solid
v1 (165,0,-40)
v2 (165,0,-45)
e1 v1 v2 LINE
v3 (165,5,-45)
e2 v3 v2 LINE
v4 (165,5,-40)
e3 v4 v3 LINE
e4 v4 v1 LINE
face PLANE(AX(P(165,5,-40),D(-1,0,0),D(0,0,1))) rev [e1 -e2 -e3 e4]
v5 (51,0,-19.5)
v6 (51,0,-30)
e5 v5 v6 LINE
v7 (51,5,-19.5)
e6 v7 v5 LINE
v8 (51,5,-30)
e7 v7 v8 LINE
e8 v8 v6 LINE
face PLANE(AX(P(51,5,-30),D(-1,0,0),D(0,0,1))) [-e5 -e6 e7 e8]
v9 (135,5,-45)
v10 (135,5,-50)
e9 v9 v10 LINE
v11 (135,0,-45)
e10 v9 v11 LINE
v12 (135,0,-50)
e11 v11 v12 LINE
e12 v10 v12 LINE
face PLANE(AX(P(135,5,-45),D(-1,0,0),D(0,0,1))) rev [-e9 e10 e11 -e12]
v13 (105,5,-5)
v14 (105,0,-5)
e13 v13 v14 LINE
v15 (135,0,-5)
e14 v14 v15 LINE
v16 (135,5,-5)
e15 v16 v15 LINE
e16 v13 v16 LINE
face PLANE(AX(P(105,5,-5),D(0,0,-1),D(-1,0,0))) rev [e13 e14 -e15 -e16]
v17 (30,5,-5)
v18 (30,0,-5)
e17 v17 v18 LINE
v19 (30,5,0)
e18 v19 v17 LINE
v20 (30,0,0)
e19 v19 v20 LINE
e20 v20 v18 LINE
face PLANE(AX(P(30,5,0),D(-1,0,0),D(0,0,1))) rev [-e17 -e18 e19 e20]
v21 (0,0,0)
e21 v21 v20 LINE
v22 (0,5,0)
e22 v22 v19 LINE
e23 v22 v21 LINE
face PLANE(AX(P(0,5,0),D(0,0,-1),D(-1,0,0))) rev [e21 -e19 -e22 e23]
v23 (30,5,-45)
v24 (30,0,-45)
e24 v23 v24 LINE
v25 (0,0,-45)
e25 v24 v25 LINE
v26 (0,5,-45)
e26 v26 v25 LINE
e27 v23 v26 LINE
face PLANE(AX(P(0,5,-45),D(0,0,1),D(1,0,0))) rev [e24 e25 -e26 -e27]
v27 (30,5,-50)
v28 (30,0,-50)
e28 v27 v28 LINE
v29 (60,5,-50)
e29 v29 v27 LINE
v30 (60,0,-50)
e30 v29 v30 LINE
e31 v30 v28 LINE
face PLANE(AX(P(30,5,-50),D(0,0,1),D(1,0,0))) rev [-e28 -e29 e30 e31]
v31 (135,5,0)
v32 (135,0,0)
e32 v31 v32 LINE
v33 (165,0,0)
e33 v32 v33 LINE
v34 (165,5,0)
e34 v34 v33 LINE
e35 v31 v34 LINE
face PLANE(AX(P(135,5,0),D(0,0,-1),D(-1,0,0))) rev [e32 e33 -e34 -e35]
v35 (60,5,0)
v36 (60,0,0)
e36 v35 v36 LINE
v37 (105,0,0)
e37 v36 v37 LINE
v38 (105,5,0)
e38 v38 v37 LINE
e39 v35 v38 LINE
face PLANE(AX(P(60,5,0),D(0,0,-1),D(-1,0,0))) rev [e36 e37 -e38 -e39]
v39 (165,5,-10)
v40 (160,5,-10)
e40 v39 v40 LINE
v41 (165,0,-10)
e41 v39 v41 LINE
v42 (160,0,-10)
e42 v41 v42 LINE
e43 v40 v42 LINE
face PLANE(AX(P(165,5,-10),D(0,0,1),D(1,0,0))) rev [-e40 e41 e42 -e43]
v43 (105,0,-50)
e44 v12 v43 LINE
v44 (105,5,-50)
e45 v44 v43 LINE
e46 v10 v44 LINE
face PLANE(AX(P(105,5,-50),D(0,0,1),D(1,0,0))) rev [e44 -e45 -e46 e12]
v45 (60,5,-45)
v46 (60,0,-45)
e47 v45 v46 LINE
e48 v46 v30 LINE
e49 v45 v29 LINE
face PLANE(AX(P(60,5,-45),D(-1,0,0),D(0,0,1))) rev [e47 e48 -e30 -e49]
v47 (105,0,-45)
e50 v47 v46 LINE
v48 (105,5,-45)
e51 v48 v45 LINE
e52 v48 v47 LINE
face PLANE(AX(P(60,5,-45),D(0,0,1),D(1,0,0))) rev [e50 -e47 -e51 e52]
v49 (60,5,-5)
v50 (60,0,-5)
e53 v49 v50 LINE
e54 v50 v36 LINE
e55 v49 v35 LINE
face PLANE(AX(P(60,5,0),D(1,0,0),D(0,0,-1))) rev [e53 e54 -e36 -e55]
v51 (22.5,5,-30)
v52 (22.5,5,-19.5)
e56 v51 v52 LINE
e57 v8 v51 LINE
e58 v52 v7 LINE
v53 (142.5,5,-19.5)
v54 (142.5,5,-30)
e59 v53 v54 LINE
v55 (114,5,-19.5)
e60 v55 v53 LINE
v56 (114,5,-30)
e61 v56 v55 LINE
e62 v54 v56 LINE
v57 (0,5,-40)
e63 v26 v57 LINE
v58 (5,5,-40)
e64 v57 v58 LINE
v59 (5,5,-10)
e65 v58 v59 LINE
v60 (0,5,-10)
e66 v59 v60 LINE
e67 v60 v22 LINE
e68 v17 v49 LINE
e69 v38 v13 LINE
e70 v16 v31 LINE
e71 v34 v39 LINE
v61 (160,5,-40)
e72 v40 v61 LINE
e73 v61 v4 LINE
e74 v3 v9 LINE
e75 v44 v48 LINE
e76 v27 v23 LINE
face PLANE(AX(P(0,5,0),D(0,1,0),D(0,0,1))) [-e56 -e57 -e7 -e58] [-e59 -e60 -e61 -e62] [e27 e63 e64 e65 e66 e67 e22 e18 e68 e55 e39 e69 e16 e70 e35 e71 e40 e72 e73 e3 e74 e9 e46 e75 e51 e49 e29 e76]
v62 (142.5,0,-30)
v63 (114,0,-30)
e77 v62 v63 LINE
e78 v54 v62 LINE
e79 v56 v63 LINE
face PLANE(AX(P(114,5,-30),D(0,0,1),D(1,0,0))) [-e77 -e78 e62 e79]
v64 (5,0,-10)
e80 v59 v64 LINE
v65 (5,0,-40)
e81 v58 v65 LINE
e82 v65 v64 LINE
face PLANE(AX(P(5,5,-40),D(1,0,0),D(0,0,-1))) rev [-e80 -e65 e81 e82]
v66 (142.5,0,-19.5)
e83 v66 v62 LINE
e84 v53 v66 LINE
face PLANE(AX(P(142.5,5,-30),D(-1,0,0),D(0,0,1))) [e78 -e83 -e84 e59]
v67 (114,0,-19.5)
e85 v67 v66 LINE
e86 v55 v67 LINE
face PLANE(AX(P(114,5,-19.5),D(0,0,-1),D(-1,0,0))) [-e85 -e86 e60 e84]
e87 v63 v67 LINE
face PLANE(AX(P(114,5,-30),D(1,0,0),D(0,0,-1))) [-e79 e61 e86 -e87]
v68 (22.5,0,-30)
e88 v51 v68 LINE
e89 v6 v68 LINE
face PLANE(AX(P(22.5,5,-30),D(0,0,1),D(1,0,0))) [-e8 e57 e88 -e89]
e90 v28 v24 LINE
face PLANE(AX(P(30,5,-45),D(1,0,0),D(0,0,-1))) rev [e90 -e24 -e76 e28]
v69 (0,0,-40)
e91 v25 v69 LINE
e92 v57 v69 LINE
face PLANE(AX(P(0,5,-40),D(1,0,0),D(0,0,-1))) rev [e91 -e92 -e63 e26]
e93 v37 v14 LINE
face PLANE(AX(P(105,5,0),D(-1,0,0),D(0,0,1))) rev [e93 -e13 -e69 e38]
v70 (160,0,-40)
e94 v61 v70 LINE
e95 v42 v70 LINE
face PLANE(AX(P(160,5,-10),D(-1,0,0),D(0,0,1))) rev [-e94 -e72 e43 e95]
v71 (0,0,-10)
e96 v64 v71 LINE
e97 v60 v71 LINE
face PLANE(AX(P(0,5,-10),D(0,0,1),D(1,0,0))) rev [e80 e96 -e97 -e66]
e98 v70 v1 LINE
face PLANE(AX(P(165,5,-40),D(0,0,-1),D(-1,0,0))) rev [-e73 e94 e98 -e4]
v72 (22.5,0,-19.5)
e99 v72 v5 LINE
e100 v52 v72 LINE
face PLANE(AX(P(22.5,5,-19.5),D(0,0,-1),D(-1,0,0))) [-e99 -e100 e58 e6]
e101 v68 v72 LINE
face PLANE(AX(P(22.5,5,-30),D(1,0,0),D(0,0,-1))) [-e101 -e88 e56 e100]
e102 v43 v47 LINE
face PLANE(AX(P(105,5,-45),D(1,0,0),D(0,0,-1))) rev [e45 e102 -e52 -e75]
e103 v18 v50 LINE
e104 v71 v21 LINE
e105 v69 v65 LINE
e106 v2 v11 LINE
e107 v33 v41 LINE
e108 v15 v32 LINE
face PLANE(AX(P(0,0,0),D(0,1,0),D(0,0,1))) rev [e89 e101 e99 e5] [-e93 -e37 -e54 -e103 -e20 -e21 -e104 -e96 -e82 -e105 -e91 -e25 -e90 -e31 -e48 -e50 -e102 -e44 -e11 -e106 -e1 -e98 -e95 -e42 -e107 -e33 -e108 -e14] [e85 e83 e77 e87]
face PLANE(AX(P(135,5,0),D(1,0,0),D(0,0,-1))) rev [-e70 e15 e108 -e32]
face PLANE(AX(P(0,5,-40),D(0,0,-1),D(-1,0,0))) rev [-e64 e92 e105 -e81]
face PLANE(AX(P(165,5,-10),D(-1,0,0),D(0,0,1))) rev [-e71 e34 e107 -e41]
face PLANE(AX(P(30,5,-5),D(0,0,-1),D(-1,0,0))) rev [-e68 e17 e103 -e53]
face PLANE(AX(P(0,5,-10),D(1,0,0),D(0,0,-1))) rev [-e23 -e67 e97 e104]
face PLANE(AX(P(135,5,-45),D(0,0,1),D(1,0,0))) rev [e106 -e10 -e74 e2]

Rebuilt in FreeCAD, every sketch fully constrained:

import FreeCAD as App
import Part
import Sketcher

V = App.Vector

doc = App.newDocument("Part")
body = doc.addObject("PartDesign::Body", "Body")

# Sketch on XZ plane
sketch1 = doc.addObject("Sketcher::SketchObject", "Sketch")
body.addObject(sketch1)
sketch1.AttachmentSupport = (doc.XZ_Plane, [""])
sketch1.MapMode = "FlatFace"
sketch1.addGeometry(Part.LineSegment(V(0, -45, 0), V(0, -40, 0)), False)
sketch1.addGeometry(Part.LineSegment(V(0, -40, 0), V(5, -40, 0)), False)
sketch1.addGeometry(Part.LineSegment(V(5, -40, 0), V(5, -10, 0)), False)
sketch1.addGeometry(Part.LineSegment(V(5, -10, 0), V(0, -10, 0)), False)
sketch1.addGeometry(Part.LineSegment(V(0, -10, 0), V(0, 0, 0)), False)
sketch1.addGeometry(Part.LineSegment(V(0, 0, 0), V(30, 0, 0)), False)
sketch1.addGeometry(Part.LineSegment(V(30, 0, 0), V(30, -5, 0)), False)
sketch1.addGeometry(Part.LineSegment(V(30, -5, 0), V(60, -5, 0)), False)
sketch1.addGeometry(Part.LineSegment(V(60, -5, 0), V(60, 0, 0)), False)
sketch1.addGeometry(Part.LineSegment(V(60, 0, 0), V(105, 0, 0)), False)
sketch1.addGeometry(Part.LineSegment(V(105, 0, 0), V(105, -5, 0)), False)
sketch1.addGeometry(Part.LineSegment(V(105, -5, 0), V(135, -5, 0)), False)
sketch1.addGeometry(Part.LineSegment(V(135, -5, 0), V(135, 0, 0)), False)
sketch1.addGeometry(Part.LineSegment(V(135, 0, 0), V(165, 0, 0)), False)
sketch1.addGeometry(Part.LineSegment(V(165, 0, 0), V(165, -10, 0)), False)
sketch1.addGeometry(Part.LineSegment(V(165, -10, 0), V(160, -10, 0)), False)
sketch1.addGeometry(Part.LineSegment(V(160, -10, 0), V(160, -40, 0)), False)
sketch1.addGeometry(Part.LineSegment(V(160, -40, 0), V(165, -40, 0)), False)
sketch1.addGeometry(Part.LineSegment(V(165, -40, 0), V(165, -45, 0)), False)
sketch1.addGeometry(Part.LineSegment(V(165, -45, 0), V(135, -45, 0)), False)
sketch1.addGeometry(Part.LineSegment(V(135, -45, 0), V(135, -50, 0)), False)
sketch1.addGeometry(Part.LineSegment(V(135, -50, 0), V(105, -50, 0)), False)
sketch1.addGeometry(Part.LineSegment(V(105, -50, 0), V(105, -45, 0)), False)
sketch1.addGeometry(Part.LineSegment(V(105, -45, 0), V(60, -45, 0)), False)
sketch1.addGeometry(Part.LineSegment(V(60, -45, 0), V(60, -50, 0)), False)
sketch1.addGeometry(Part.LineSegment(V(60, -50, 0), V(30, -50, 0)), False)
sketch1.addGeometry(Part.LineSegment(V(30, -50, 0), V(30, -45, 0)), False)
sketch1.addGeometry(Part.LineSegment(V(30, -45, 0), V(0, -45, 0)), False)
sketch1.addGeometry(Part.LineSegment(V(114, -20, 0), V(114, -30, 0)), False)
sketch1.addGeometry(Part.LineSegment(V(114, -30, 0), V(142, -30, 0)), False)
sketch1.addGeometry(Part.LineSegment(V(142, -30, 0), V(142, -20, 0)), False)
sketch1.addGeometry(Part.LineSegment(V(142, -20, 0), V(114, -20, 0)), False)
sketch1.addGeometry(Part.LineSegment(V(22, -20, 0), V(22, -30, 0)), False)
sketch1.addGeometry(Part.LineSegment(V(22, -30, 0), V(51, -30, 0)), False)
sketch1.addGeometry(Part.LineSegment(V(51, -30, 0), V(51, -20, 0)), False)
sketch1.addGeometry(Part.LineSegment(V(51, -20, 0), V(22, -20, 0)), False)
sketch1.addConstraint(Sketcher.Constraint("Coincident", 0, 2, 1, 1))
sketch1.addConstraint(Sketcher.Constraint("Coincident", 1, 2, 2, 1))
sketch1.addConstraint(Sketcher.Constraint("Coincident", 2, 2, 3, 1))
sketch1.addConstraint(Sketcher.Constraint("Coincident", 3, 2, 4, 1))
sketch1.addConstraint(Sketcher.Constraint("Coincident", 4, 2, 5, 1))
sketch1.addConstraint(Sketcher.Constraint("Coincident", 5, 2, 6, 1))
sketch1.addConstraint(Sketcher.Constraint("Coincident", 6, 2, 7, 1))
sketch1.addConstraint(Sketcher.Constraint("Coincident", 7, 2, 8, 1))
sketch1.addConstraint(Sketcher.Constraint("Coincident", 8, 2, 9, 1))
sketch1.addConstraint(Sketcher.Constraint("Coincident", 9, 2, 10, 1))
sketch1.addConstraint(Sketcher.Constraint("Coincident", 10, 2, 11, 1))
sketch1.addConstraint(Sketcher.Constraint("Coincident", 11, 2, 12, 1))
sketch1.addConstraint(Sketcher.Constraint("Coincident", 12, 2, 13, 1))
sketch1.addConstraint(Sketcher.Constraint("Coincident", 13, 2, 14, 1))
sketch1.addConstraint(Sketcher.Constraint("Coincident", 14, 2, 15, 1))
sketch1.addConstraint(Sketcher.Constraint("Coincident", 15, 2, 16, 1))
sketch1.addConstraint(Sketcher.Constraint("Coincident", 16, 2, 17, 1))
sketch1.addConstraint(Sketcher.Constraint("Coincident", 17, 2, 18, 1))
sketch1.addConstraint(Sketcher.Constraint("Coincident", 18, 2, 19, 1))
sketch1.addConstraint(Sketcher.Constraint("Coincident", 19, 2, 20, 1))
sketch1.addConstraint(Sketcher.Constraint("Coincident", 20, 2, 21, 1))
sketch1.addConstraint(Sketcher.Constraint("Coincident", 21, 2, 22, 1))
sketch1.addConstraint(Sketcher.Constraint("Coincident", 22, 2, 23, 1))
sketch1.addConstraint(Sketcher.Constraint("Coincident", 23, 2, 24, 1))
sketch1.addConstraint(Sketcher.Constraint("Coincident", 24, 2, 25, 1))
sketch1.addConstraint(Sketcher.Constraint("Coincident", 25, 2, 26, 1))
sketch1.addConstraint(Sketcher.Constraint("Coincident", 26, 2, 27, 1))
sketch1.addConstraint(Sketcher.Constraint("Coincident", 27, 2, 0, 1))
sketch1.addConstraint(Sketcher.Constraint("Coincident", 28, 2, 29, 1))
sketch1.addConstraint(Sketcher.Constraint("Coincident", 29, 2, 30, 1))
sketch1.addConstraint(Sketcher.Constraint("Coincident", 30, 2, 31, 1))
sketch1.addConstraint(Sketcher.Constraint("Coincident", 31, 2, 28, 1))
sketch1.addConstraint(Sketcher.Constraint("Coincident", 32, 2, 33, 1))
sketch1.addConstraint(Sketcher.Constraint("Coincident", 33, 2, 34, 1))
sketch1.addConstraint(Sketcher.Constraint("Coincident", 34, 2, 35, 1))
sketch1.addConstraint(Sketcher.Constraint("Coincident", 35, 2, 32, 1))
sketch1.addConstraint(Sketcher.Constraint("Vertical", 0))
sketch1.addConstraint(Sketcher.Constraint("Horizontal", 1))
sketch1.addConstraint(Sketcher.Constraint("Vertical", 2))
sketch1.addConstraint(Sketcher.Constraint("Horizontal", 3))
sketch1.addConstraint(Sketcher.Constraint("Vertical", 4))
sketch1.addConstraint(Sketcher.Constraint("Horizontal", 5))
sketch1.addConstraint(Sketcher.Constraint("Vertical", 6))
sketch1.addConstraint(Sketcher.Constraint("Horizontal", 7))
sketch1.addConstraint(Sketcher.Constraint("Vertical", 8))
sketch1.addConstraint(Sketcher.Constraint("Horizontal", 9))
sketch1.addConstraint(Sketcher.Constraint("Vertical", 10))
sketch1.addConstraint(Sketcher.Constraint("Horizontal", 11))
sketch1.addConstraint(Sketcher.Constraint("Vertical", 12))
sketch1.addConstraint(Sketcher.Constraint("Horizontal", 13))
sketch1.addConstraint(Sketcher.Constraint("Vertical", 14))
sketch1.addConstraint(Sketcher.Constraint("Horizontal", 15))
sketch1.addConstraint(Sketcher.Constraint("Vertical", 16))
sketch1.addConstraint(Sketcher.Constraint("Horizontal", 17))
sketch1.addConstraint(Sketcher.Constraint("Vertical", 18))
sketch1.addConstraint(Sketcher.Constraint("Horizontal", 19))
sketch1.addConstraint(Sketcher.Constraint("Vertical", 20))
sketch1.addConstraint(Sketcher.Constraint("Horizontal", 21))
sketch1.addConstraint(Sketcher.Constraint("Vertical", 22))
sketch1.addConstraint(Sketcher.Constraint("Horizontal", 23))
sketch1.addConstraint(Sketcher.Constraint("Vertical", 24))
sketch1.addConstraint(Sketcher.Constraint("Horizontal", 25))
sketch1.addConstraint(Sketcher.Constraint("Vertical", 26))
sketch1.addConstraint(Sketcher.Constraint("Horizontal", 27))
sketch1.addConstraint(Sketcher.Constraint("Vertical", 28))
sketch1.addConstraint(Sketcher.Constraint("Horizontal", 29))
sketch1.addConstraint(Sketcher.Constraint("Vertical", 30))
sketch1.addConstraint(Sketcher.Constraint("Horizontal", 31))
sketch1.addConstraint(Sketcher.Constraint("Vertical", 32))
sketch1.addConstraint(Sketcher.Constraint("Horizontal", 33))
sketch1.addConstraint(Sketcher.Constraint("Vertical", 34))
sketch1.addConstraint(Sketcher.Constraint("Horizontal", 35))
sketch1.addConstraint(Sketcher.Constraint("Coincident", 4, 2, -1, 1))
sketch1.addConstraint(Sketcher.Constraint("PointOnObject", 0, 2, -2))
sketch1.addConstraint(Sketcher.Constraint("PointOnObject", 8, 2, -1))
sketch1.addConstraint(Sketcher.Constraint("PointOnObject", 12, 2, -1))
sketch1.addConstraint(Sketcher.Constraint("Horizontal", 7, 2, 10, 2))
sketch1.addConstraint(Sketcher.Constraint("Horizontal", 3, 2, 14, 2))
sketch1.addConstraint(Sketcher.Constraint("Horizontal", 1, 2, 16, 2))
sketch1.addConstraint(Sketcher.Constraint("Horizontal", 19, 2, 22, 2))
sketch1.addConstraint(Sketcher.Constraint("Horizontal", 21, 2, 24, 2))
sketch1.addConstraint(Sketcher.Constraint("Horizontal", 23, 2, 26, 2))
sketch1.addConstraint(Sketcher.Constraint("Horizontal", 29, 2, 32, 2))
sketch1.addConstraint(Sketcher.Constraint("Horizontal", 31, 2, 34, 2))
sketch1.addConstraint(Sketcher.Constraint("Vertical", 14, 2, 17, 2))
sketch1.addConstraint(Sketcher.Constraint("Vertical", 12, 2, 19, 2))
sketch1.addConstraint(Sketcher.Constraint("Vertical", 10, 2, 21, 2))
sketch1.addConstraint(Sketcher.Constraint("Vertical", 8, 2, 23, 2))
sketch1.addConstraint(Sketcher.Constraint("Vertical", 6, 2, 25, 2))
sketch1.addConstraint(Sketcher.Constraint("Equal", 5, 7))
sketch1.addConstraint(Sketcher.Constraint("Equal", 7, 11))
sketch1.addConstraint(Sketcher.Constraint("Equal", 11, 13))
sketch1.addConstraint(Sketcher.Constraint("Equal", 3, 15))
sketch1.addConstraint(Sketcher.Constraint("Equal", 31, 33))
sketch1.addConstraint(Sketcher.Constraint("Equal", 17, 0))
sketch1.addConstraint(Sketcher.Constraint("Equal", 27, 2))
sketch1.addConstraint(Sketcher.Constraint("Equal", 0, 6))
sketch1.addConstraint(Sketcher.Constraint("Equal", 18, 20))
sketch1.addConstraint(Sketcher.Constraint("DistanceX", 1, 1, 1, 2, 5.0))
sketch1.addConstraint(Sketcher.Constraint("DistanceX", 5, 1, 5, 2, 30.0))
sketch1.addConstraint(Sketcher.Constraint("DistanceX", 9, 1, 9, 2, 45.0))
sketch1.addConstraint(Sketcher.Constraint("DistanceY", 4, 1, 4, 2, 10.0))
sketch1.addConstraint(Sketcher.Constraint("DistanceX", 29, 1, 29, 2, 28.5))
sketch1.addConstraint(Sketcher.Constraint("DistanceY", 28, 2, 28, 1, 10.5))
sketch1.addConstraint(Sketcher.Constraint("DistanceX", -1, 1, 28, 2, 114.0))
sketch1.addConstraint(Sketcher.Constraint("DistanceY", 28, 2, -1, 1, 30.0))
sketch1.addConstraint(Sketcher.Constraint("DistanceX", -1, 1, 33, 2, 51.0))
pad1 = doc.addObject("PartDesign::Pad", "Pad")
body.addObject(pad1)
pad1.Profile = sketch1
pad1.Length = 5
pad1.Reversed = True

doc.recompute()
